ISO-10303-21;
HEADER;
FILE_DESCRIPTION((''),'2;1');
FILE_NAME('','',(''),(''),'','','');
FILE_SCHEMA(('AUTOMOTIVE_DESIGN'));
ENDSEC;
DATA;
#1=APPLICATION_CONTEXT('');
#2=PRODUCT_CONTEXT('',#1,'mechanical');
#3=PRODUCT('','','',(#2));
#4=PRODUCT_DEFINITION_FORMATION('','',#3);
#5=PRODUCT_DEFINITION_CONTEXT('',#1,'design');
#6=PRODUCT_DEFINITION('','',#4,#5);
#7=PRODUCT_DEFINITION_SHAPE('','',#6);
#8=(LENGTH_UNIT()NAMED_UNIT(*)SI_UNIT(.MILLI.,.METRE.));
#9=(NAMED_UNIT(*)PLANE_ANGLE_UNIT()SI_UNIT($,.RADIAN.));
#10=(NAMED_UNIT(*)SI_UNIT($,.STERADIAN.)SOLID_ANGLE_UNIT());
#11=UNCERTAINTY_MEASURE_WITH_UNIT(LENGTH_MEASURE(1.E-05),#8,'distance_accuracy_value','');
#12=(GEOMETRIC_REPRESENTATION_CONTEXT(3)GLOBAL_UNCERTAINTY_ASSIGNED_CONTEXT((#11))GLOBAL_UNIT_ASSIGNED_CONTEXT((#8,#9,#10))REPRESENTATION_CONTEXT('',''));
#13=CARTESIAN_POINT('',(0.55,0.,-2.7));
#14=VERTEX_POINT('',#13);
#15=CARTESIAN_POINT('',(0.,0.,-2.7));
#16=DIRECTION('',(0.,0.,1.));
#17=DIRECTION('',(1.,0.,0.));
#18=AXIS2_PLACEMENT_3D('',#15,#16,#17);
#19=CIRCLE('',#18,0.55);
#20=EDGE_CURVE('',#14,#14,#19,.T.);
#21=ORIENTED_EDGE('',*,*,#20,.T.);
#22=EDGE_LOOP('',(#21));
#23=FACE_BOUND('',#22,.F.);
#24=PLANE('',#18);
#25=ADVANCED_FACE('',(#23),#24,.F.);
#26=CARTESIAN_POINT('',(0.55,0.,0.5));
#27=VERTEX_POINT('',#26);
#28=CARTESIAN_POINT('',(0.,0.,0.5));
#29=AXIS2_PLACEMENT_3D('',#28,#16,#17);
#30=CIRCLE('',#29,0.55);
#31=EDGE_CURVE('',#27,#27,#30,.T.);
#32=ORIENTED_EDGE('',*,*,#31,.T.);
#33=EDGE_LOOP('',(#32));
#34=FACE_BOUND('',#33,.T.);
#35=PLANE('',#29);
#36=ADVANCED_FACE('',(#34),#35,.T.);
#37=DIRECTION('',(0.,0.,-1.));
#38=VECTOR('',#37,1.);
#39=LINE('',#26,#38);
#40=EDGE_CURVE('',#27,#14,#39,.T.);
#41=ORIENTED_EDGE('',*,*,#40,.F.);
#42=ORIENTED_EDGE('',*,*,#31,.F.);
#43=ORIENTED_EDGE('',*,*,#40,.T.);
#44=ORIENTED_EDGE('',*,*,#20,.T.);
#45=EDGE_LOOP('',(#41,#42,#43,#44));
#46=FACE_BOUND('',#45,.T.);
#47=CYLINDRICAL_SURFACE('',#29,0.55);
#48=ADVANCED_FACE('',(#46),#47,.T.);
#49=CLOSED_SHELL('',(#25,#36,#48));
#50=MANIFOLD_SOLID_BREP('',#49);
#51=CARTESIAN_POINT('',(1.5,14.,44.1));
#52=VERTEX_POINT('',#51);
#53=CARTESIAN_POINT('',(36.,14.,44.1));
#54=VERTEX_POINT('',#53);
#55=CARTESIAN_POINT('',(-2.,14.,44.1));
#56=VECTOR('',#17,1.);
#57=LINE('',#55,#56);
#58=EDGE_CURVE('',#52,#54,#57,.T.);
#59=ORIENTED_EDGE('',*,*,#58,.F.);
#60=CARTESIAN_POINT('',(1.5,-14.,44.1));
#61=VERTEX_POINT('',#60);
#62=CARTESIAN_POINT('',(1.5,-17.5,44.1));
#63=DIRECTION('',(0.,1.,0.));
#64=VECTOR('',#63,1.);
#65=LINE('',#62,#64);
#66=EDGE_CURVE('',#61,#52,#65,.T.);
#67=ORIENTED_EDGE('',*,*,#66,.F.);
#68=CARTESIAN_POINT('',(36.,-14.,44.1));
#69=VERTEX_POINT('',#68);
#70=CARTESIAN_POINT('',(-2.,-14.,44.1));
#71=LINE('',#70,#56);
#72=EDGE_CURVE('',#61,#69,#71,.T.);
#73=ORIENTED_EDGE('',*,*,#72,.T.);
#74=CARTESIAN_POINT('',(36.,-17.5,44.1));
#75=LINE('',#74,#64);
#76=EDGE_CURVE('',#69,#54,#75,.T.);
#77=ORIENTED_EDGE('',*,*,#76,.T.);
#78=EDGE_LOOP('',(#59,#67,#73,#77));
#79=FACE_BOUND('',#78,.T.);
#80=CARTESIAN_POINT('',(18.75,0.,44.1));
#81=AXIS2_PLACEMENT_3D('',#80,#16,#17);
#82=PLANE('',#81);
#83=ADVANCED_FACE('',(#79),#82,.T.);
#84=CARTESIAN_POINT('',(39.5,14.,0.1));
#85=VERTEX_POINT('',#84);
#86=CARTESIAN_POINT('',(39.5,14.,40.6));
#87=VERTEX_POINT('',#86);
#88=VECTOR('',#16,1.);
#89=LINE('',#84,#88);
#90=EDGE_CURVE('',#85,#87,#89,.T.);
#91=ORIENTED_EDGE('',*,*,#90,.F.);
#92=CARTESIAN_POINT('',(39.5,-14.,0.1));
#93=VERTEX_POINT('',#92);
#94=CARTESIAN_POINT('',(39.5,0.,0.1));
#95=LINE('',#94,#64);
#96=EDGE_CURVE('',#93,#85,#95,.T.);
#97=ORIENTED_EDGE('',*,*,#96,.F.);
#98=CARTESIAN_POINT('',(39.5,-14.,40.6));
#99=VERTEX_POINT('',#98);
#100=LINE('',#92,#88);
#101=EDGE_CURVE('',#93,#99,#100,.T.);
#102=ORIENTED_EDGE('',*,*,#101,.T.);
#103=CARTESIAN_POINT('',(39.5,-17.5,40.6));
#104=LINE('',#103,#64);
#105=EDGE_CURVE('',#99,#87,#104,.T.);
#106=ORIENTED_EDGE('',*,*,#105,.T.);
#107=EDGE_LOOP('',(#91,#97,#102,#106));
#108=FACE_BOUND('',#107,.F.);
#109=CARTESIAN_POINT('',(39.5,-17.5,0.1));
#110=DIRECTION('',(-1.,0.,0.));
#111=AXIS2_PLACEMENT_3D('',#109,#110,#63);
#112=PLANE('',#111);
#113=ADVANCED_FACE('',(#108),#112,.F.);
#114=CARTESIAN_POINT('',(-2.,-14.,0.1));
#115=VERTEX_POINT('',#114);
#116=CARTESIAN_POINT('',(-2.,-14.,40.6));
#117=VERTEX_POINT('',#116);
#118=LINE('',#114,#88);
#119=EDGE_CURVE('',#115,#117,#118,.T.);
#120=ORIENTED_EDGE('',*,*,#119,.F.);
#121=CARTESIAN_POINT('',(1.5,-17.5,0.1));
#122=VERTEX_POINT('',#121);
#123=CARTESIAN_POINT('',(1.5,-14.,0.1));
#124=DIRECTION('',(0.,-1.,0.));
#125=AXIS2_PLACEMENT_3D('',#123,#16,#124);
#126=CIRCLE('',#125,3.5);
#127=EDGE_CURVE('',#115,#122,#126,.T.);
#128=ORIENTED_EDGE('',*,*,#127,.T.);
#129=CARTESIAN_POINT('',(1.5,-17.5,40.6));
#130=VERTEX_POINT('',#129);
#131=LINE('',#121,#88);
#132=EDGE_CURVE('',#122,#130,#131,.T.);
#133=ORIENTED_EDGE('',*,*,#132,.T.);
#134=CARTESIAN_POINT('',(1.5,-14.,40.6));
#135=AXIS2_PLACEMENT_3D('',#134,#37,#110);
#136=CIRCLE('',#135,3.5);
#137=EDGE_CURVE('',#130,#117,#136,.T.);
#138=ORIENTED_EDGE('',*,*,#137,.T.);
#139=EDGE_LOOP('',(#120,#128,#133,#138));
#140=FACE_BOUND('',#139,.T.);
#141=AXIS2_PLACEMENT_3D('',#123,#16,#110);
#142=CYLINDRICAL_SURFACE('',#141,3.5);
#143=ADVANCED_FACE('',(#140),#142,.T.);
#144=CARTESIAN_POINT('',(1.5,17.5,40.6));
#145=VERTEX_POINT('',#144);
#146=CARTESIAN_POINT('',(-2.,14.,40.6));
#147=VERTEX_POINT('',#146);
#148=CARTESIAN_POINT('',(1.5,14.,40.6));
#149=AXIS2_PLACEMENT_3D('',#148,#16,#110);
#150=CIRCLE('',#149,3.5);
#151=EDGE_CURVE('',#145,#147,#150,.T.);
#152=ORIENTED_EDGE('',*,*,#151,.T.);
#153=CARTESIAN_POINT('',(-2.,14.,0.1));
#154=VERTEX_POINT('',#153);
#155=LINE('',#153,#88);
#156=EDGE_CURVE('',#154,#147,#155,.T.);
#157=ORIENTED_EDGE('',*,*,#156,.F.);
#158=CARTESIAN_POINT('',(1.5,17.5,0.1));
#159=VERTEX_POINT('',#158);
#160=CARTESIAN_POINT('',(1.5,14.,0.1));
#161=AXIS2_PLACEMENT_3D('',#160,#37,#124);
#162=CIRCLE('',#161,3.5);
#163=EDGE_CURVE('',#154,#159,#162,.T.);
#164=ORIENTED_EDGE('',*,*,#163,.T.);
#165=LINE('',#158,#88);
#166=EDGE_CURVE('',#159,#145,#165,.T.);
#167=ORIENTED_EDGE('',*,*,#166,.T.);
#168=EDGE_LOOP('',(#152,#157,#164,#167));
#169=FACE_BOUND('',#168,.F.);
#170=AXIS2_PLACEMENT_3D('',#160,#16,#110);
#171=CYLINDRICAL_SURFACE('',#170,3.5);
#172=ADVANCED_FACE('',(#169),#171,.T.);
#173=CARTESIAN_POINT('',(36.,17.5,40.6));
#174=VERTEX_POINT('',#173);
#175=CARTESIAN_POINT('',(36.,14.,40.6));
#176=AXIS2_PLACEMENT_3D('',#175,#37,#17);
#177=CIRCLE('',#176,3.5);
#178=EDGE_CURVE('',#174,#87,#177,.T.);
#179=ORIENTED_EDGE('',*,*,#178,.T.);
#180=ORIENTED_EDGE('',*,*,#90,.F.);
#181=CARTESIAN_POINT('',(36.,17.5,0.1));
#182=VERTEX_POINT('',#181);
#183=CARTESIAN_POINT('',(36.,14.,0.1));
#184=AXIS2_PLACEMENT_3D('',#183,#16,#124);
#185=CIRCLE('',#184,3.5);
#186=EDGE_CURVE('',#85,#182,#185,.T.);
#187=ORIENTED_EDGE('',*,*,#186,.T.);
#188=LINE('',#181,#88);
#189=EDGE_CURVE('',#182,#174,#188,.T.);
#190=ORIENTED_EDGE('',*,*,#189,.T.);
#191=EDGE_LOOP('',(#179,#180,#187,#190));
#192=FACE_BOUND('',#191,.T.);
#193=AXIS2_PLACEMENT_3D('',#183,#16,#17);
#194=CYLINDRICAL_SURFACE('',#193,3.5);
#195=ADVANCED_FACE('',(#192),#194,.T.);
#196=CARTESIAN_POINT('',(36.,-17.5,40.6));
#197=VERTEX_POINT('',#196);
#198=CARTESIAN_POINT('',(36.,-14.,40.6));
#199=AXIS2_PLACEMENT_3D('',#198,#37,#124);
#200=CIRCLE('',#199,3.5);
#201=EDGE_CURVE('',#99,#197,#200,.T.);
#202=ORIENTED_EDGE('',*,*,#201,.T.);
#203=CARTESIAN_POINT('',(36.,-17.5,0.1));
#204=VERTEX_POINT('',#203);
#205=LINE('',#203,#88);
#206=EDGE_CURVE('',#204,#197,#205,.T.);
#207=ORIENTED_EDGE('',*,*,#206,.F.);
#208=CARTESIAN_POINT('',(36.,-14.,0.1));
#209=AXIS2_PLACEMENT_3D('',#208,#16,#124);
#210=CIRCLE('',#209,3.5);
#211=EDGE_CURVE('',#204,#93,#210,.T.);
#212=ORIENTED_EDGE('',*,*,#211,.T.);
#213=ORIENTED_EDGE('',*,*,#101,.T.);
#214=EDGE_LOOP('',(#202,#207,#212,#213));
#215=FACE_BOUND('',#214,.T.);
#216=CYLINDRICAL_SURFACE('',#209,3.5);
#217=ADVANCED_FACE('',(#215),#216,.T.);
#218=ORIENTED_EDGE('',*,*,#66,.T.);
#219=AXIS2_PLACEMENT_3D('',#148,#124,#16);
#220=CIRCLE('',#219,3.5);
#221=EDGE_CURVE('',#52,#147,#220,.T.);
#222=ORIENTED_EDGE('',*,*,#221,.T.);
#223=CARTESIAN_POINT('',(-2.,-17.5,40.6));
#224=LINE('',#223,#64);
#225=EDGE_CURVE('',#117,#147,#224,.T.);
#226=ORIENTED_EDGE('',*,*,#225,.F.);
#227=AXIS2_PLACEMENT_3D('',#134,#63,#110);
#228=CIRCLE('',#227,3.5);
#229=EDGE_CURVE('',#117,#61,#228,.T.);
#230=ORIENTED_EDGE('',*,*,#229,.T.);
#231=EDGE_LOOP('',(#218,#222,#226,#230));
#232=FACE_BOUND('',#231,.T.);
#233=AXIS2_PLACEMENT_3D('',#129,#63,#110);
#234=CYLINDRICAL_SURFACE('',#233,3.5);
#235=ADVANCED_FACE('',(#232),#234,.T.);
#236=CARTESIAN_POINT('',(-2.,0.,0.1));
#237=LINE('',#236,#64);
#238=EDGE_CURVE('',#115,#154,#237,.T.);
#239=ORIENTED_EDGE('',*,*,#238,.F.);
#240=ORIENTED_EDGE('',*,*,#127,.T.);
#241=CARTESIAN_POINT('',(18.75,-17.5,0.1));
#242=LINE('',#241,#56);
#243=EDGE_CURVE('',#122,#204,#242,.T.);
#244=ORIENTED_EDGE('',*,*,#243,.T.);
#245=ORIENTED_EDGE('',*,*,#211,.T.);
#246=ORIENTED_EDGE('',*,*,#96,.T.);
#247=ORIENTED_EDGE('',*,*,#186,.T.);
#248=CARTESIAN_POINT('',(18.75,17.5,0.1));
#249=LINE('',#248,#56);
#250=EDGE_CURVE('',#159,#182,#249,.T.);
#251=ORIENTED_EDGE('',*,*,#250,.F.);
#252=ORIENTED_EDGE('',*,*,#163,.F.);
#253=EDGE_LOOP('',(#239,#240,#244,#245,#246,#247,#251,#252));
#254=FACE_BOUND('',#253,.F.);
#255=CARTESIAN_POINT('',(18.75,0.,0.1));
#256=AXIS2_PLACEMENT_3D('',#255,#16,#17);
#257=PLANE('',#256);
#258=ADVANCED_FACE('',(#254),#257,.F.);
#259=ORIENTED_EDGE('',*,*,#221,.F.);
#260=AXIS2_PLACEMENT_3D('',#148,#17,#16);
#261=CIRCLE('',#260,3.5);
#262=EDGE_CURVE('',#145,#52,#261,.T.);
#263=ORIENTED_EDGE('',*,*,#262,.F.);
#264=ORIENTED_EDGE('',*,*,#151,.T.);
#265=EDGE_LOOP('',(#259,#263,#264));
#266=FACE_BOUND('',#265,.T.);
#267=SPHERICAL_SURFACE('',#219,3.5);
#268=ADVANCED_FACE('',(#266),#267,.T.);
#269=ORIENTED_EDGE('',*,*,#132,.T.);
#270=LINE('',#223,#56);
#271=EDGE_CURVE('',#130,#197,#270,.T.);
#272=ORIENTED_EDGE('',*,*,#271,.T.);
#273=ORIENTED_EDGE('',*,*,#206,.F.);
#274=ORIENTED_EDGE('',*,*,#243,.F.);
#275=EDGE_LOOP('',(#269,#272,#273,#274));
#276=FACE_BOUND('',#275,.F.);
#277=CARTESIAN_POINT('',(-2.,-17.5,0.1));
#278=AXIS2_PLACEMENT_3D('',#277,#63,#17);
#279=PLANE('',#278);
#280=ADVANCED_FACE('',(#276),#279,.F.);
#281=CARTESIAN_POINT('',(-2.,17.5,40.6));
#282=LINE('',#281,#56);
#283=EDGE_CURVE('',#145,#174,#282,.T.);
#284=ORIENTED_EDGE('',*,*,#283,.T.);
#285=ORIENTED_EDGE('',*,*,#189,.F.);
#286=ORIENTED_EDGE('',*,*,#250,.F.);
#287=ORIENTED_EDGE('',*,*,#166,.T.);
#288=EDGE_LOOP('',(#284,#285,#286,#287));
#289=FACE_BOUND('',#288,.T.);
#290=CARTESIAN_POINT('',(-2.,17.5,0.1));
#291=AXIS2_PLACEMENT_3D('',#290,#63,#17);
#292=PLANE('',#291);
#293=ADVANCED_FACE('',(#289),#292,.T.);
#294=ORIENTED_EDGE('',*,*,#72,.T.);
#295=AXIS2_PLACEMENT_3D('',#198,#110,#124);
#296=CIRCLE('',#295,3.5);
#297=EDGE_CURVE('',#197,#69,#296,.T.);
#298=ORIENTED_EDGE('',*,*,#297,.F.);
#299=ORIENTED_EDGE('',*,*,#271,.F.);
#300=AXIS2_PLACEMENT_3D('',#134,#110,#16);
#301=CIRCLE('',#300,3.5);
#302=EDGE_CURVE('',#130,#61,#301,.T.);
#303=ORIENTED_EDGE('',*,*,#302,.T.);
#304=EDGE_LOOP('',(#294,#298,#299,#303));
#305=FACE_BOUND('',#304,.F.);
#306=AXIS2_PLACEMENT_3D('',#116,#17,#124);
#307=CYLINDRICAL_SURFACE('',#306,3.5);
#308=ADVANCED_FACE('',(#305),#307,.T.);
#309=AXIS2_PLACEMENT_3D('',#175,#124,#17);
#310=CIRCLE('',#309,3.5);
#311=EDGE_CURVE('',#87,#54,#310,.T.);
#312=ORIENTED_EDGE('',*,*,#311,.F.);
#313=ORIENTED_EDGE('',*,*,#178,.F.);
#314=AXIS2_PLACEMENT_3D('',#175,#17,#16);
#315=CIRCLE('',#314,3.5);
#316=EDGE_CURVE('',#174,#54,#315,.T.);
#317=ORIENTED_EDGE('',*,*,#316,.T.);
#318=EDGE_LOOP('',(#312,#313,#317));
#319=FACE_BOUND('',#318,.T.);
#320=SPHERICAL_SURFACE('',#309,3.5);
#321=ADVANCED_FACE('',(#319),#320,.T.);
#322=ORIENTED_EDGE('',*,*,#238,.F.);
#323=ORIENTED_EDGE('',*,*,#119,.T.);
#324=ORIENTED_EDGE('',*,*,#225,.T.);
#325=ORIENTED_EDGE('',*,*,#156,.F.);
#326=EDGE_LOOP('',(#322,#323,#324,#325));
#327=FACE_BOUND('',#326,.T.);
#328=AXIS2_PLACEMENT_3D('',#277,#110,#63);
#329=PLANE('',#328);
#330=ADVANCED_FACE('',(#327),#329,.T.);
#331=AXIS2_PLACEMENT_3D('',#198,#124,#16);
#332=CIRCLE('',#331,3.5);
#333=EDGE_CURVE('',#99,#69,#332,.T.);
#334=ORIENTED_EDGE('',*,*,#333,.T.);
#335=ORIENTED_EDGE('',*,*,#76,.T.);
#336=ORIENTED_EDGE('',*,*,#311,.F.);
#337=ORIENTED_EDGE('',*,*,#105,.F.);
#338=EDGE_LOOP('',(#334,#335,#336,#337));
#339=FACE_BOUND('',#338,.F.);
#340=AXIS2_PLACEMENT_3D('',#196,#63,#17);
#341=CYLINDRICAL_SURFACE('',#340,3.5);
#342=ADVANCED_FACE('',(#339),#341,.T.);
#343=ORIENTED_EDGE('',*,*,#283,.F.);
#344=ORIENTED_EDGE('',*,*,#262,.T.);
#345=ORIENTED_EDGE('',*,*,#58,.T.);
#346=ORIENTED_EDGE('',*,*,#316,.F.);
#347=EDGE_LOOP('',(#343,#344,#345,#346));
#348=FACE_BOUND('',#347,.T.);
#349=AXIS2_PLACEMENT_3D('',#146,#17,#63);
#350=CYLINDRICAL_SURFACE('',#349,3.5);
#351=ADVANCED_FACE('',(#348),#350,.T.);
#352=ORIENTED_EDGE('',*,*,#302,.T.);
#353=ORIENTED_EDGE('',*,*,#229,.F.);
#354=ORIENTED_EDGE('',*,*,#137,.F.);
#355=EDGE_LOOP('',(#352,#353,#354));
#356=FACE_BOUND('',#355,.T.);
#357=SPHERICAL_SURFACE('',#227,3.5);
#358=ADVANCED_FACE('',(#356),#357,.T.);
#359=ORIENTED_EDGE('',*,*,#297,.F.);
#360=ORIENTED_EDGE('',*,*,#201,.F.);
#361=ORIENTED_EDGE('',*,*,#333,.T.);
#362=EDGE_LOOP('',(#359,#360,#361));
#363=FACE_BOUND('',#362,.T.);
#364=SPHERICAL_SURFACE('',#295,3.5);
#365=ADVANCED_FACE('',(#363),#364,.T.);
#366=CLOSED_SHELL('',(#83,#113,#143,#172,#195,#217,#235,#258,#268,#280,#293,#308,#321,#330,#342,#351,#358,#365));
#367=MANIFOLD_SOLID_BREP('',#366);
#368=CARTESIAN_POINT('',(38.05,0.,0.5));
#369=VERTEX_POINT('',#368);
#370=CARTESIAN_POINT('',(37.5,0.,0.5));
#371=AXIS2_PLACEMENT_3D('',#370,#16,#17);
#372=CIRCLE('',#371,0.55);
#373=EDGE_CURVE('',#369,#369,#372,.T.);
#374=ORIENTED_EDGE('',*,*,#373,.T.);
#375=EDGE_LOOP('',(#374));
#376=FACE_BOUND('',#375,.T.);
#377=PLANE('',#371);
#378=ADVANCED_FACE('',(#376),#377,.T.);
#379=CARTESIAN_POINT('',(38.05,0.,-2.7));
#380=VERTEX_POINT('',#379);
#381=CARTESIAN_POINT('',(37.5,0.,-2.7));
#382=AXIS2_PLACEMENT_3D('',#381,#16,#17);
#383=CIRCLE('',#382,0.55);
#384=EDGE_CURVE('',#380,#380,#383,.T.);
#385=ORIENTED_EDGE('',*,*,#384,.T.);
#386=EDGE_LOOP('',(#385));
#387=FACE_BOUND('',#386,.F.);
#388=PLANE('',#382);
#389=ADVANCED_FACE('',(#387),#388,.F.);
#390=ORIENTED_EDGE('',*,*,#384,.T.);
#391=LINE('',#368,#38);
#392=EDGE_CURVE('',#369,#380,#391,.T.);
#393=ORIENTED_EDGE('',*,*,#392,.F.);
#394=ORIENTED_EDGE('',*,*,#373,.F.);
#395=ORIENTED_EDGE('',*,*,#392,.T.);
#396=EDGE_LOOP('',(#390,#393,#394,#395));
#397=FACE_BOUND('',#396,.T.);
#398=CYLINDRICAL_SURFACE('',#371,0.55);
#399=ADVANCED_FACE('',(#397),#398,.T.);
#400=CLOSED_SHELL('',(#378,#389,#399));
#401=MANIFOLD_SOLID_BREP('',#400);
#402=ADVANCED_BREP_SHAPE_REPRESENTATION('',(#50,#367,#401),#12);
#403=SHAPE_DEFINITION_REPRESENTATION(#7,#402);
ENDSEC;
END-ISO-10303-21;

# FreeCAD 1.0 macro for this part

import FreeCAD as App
import Part
import Sketcher
from FreeCAD import Vector
Q = App.Units.Quantity


def edges_at(feature, points):
    """Names of the edges that pass closest to the given points."""
    edges = feature.Shape.Edges
    near = lambda p: min(range(len(edges)), key=lambda i: edges[i].distToShape(Part.Vertex(*p))[0])
    return sorted({f"Edge{near(p) + 1}" for p in points})


def add_polygon(sketch, points):
    """Adds a closed chain of lines whose ends are joined by coincident constraints."""
    first, n = sketch.GeometryCount, len(points)
    for a, b in zip(points, points[1:] + points[:1]):
        sketch.addGeometry(Part.LineSegment(App.Vector(*a, 0), App.Vector(*b, 0)), False)
    for i in range(n):
        sketch.addConstraint(Sketcher.Constraint("Coincident", first + i, 2, first + (i + 1) % n, 1))

doc = App.newDocument("Part")
params = doc.addObject("Spreadsheet::Sheet", "Params")
for row, (alias, value) in enumerate([
    ("sketch1_height", "35 mm"),
    ("sketch1_width", "41.5 mm"),
    ("pad1_length", "44 mm"),
    ("fillet_radius", "3.5 mm"),
    ("sketch2_diameter", "1.1 mm"),
    ("pad2_length", "3.2 mm"),
], start=1):
    params.set(f"A{row}", alias)
    params.set(f"B{row}", "=" + value)
    params.setAlias(f"B{row}", alias)

body = doc.addObject("PartDesign::Body", "Body")

sketch1 = body.newObject("Sketcher::SketchObject", "Sketch")
sketch1.AttachmentSupport = (doc.getObject("XY_Plane"), [""])
sketch1.MapMode = "FlatFace"
sketch1.AttachmentOffset = App.Placement(Vector(0, 0, 0.1), App.Rotation())
add_polygon(sketch1, [(-2, 17.5), (-2, -17.5), (39.5, -17.5), (39.5, 17.5)])
sketch1.addConstraint(Sketcher.Constraint("Vertical", 0))
sketch1.addConstraint(Sketcher.Constraint("Horizontal", 1))
sketch1.addConstraint(Sketcher.Constraint("Vertical", 2))
sketch1.addConstraint(Sketcher.Constraint("Horizontal", 3))
sketch1.addConstraint(Sketcher.Constraint("DistanceY", 0, 2, 0, 1, Q("35 mm")))
sketch1.addConstraint(Sketcher.Constraint("DistanceX", 1, 1, 1, 2, Q("41.5 mm")))
sketch1.addConstraint(Sketcher.Constraint("DistanceX", 0, 2, -1, 1, Q("2 mm")))
sketch1.addConstraint(Sketcher.Constraint("DistanceY", 0, 2, -1, 1, Q("17.5 mm")))
sketch1.setExpression("Constraints[8]", "Params.sketch1_height")
sketch1.setExpression("Constraints[9]", "Params.sketch1_width")
pad1 = body.newObject("PartDesign::Pad", "Pad")
pad1.Profile = sketch1
pad1.setExpression("Length", "Params.pad1_length")
doc.recompute()

fillet = body.newObject("PartDesign::Fillet", "Fillet")
fillet.Base = (pad1, edges_at(pad1, [
    (-2, 0, 44.1),
    (-2, -17.5, 22.1),
    (18.75, -17.5, 44.1),
    (39.5, -17.5, 22.1),
    (39.5, 0, 44.1),
    (39.5, 17.5, 22.1),
    (18.75, 17.5, 44.1),
    (-2, 17.5, 22.1),
]))
fillet.setExpression("Radius", "Params.fillet_radius")
body2 = doc.addObject("PartDesign::Body", "Body001")
body2.AllowCompound = True

sketch2 = body2.newObject("Sketcher::SketchObject", "Sketch001")
sketch2.AttachmentSupport = (doc.getObject("XY_Plane001"), [""])
sketch2.MapMode = "FlatFace"
sketch2.AttachmentOffset = App.Placement(Vector(0, 0, 0.5), App.Rotation())
sketch2.addGeometry(Part.Circle(Vector(0, 0, 0), Vector(0, 0, 1), 0.55), False)
sketch2.addGeometry(Part.Circle(Vector(37.5, 0, 0), Vector(0, 0, 1), 0.55), False)
sketch2.addConstraint(Sketcher.Constraint("Coincident", 0, 3, -1, 1))
sketch2.addConstraint(Sketcher.Constraint("Equal", 0, 1))
sketch2.addConstraint(Sketcher.Constraint("PointOnObject", 1, 3, -1))
sketch2.addConstraint(Sketcher.Constraint("Diameter", 0, Q("1.1 mm")))
sketch2.addConstraint(Sketcher.Constraint("DistanceX", -1, 1, 1, 3, Q("37.5 mm")))
sketch2.setExpression("Constraints[3]", "Params.sketch2_diameter")
pad2 = body2.newObject("PartDesign::Pad", "Pad001")
pad2.Profile = sketch2
pad2.setExpression("Length", "Params.pad2_length")
pad2.Reversed = True

doc.recompute()
